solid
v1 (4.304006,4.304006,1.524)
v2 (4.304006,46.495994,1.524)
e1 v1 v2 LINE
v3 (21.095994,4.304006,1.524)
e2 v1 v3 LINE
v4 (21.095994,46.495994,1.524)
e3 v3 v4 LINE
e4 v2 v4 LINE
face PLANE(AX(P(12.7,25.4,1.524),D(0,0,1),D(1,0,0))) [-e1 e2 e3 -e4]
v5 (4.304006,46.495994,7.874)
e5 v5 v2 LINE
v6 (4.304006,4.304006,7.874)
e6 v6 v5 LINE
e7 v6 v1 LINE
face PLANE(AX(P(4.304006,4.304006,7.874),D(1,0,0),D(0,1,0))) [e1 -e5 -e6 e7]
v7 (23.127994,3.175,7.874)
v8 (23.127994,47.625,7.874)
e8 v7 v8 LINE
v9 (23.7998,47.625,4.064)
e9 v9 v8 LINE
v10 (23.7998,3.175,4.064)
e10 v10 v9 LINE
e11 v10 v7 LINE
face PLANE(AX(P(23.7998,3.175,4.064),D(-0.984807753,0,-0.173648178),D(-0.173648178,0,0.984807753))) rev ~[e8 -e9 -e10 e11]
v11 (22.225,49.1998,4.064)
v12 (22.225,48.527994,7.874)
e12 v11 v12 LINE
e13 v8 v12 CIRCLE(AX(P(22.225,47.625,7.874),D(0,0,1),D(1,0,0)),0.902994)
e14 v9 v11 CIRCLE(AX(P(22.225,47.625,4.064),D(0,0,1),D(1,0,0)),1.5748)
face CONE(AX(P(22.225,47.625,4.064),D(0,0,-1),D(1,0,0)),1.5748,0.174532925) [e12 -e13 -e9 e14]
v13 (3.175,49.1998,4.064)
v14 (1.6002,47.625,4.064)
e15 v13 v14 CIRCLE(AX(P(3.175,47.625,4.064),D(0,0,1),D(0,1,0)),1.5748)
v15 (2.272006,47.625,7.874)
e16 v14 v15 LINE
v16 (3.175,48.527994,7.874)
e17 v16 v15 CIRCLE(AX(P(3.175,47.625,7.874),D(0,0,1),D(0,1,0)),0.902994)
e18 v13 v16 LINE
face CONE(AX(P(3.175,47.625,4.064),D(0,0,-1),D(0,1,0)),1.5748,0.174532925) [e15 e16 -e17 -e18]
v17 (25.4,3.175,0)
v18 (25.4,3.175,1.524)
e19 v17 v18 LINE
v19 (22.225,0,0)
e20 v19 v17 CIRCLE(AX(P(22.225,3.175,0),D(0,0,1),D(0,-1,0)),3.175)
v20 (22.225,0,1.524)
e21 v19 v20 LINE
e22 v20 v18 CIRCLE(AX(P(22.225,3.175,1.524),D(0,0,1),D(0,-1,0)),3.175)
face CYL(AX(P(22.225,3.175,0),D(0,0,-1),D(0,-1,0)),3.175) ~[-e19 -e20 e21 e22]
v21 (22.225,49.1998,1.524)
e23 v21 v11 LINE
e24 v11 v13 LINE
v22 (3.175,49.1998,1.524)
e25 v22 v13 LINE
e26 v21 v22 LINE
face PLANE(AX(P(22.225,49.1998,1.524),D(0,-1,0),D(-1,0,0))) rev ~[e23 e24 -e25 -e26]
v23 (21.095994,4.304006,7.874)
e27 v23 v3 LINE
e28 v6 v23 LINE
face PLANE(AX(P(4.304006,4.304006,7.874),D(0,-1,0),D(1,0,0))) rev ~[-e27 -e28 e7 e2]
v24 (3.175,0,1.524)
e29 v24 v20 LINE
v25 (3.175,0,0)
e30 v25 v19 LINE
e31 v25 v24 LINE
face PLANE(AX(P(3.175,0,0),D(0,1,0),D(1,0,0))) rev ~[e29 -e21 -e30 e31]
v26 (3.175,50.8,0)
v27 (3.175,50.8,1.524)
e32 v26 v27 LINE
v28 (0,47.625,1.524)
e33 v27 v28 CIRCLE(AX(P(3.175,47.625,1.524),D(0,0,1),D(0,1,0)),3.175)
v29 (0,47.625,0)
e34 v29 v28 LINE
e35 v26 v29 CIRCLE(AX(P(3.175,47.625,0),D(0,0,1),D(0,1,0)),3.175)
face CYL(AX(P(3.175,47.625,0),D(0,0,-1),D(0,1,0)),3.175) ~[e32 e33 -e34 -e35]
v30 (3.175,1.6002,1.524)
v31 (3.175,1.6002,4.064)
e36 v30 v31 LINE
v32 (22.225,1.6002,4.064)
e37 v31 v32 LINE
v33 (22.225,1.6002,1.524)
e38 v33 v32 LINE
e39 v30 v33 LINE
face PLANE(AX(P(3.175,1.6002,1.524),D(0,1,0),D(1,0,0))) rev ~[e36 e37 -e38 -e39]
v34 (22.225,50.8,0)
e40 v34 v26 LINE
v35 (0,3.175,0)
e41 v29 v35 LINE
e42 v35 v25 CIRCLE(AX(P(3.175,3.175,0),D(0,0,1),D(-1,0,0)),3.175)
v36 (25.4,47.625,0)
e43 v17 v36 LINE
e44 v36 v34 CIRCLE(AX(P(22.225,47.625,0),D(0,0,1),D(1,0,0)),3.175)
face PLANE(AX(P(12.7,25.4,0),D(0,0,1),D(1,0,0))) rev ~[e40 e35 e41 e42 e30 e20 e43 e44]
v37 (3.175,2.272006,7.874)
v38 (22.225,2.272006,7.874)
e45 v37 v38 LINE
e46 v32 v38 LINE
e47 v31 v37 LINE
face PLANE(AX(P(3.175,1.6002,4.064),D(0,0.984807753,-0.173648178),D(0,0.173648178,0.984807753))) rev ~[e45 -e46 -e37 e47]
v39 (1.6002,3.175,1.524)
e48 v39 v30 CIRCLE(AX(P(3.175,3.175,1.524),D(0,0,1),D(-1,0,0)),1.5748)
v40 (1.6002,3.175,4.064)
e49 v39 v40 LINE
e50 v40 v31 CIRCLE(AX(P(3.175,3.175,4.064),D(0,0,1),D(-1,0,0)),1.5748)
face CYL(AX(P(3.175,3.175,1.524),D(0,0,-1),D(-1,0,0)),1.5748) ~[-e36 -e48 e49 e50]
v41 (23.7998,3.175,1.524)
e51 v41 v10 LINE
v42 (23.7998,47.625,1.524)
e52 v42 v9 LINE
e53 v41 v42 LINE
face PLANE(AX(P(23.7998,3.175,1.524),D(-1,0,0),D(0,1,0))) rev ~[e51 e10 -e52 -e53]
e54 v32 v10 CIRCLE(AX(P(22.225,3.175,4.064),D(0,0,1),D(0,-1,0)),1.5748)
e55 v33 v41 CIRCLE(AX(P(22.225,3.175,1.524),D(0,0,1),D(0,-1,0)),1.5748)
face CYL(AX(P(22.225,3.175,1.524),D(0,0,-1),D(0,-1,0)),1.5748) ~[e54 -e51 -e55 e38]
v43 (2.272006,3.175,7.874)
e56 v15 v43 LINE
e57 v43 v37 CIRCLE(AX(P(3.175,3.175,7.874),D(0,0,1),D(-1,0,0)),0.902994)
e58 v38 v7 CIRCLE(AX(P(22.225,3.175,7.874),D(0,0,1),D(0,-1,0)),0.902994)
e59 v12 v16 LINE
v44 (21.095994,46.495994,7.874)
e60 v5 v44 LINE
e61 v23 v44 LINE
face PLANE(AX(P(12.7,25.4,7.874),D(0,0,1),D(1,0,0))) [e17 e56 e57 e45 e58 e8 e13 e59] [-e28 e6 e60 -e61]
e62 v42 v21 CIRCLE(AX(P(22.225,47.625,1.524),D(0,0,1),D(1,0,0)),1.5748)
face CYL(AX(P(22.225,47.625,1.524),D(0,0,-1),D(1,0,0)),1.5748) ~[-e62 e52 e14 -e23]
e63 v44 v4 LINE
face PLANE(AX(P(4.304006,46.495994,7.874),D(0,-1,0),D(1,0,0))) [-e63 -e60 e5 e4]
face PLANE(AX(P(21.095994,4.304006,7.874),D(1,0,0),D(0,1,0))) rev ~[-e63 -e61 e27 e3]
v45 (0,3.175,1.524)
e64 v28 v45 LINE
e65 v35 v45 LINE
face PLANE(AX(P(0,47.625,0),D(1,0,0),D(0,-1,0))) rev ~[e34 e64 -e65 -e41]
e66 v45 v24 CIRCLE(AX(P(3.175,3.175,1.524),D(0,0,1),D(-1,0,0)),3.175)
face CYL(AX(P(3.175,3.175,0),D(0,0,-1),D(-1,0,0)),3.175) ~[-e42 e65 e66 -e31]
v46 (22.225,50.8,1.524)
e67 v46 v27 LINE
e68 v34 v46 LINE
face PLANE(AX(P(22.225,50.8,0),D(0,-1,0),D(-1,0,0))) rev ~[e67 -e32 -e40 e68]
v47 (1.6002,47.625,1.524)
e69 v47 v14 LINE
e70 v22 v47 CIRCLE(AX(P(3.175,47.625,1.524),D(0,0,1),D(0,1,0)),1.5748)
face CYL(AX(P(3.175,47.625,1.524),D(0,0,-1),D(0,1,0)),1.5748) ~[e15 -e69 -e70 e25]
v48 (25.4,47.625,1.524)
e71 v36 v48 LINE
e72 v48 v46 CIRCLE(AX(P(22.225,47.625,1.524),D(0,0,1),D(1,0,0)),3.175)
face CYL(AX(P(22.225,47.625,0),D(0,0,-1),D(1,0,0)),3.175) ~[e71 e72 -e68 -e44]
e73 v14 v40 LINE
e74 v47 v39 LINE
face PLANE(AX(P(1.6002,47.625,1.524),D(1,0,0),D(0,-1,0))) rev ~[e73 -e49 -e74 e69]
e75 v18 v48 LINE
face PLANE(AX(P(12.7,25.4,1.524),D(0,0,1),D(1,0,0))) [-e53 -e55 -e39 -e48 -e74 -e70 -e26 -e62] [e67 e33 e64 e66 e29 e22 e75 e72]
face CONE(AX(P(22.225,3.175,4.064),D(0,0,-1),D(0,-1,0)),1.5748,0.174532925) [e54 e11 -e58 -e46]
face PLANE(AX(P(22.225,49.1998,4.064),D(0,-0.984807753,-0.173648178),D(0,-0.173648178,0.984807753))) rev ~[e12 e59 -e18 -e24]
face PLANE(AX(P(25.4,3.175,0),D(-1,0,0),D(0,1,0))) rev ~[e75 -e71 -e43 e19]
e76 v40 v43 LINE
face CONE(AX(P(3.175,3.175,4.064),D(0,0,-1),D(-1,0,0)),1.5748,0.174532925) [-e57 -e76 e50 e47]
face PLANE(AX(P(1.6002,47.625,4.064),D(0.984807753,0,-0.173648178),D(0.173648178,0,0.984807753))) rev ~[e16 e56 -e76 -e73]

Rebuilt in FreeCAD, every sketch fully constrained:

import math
import FreeCAD as App
import Part
import Sketcher

V = App.Vector
Q = App.Units.Quantity


def add_polygon(sketch, points):
    """Adds a closed chain of lines whose ends are joined by coincident constraints."""
    first, n = sketch.GeometryCount, len(points)
    for a, b in zip(points, points[1:] + points[:1]):
        sketch.addGeometry(Part.LineSegment(App.Vector(*a, 0), App.Vector(*b, 0)), False)
    for i in range(n):
        sketch.addConstraint(Sketcher.Constraint("Coincident", first + i, 2, first + (i + 1) % n, 1))

doc = App.newDocument("Part")
params = doc.addObject("Spreadsheet::Sheet", "Params")
for row, (alias, value) in enumerate([
    ("sketch1_radius", "0.125 in"),
    ("pad1_length", "0.06 in"),
    ("sketch2_radius", "0.062 in"),
    ("sketch2_width", "0.75 in"),
    ("sketch2_height", "1.75 in"),
    ("pad2_length", "0.1 in"),
    ("sketch3_radius", "0.062 in"),
    ("sketch3_width", "0.75 in"),
    ("sketch3_height", "1.75 in"),
    ("pad3_length", "0.15 in"),
    ("pad3_taper", "-10 deg"),
    ("pocket1_length", "0.25 in"),
], start=1):
    params.set(f"A{row}", alias)
    params.set(f"B{row}", "=" + value)
    params.setAlias(f"B{row}", alias)

body = doc.addObject("PartDesign::Body", "Body")

# Sketch on XY plane
sketch1 = body.newObject("Sketcher::SketchObject", "Sketch")
sketch1.AttachmentSupport = (doc.getObject("XY_Plane"), [""])
sketch1.MapMode = "FlatFace"
sketch1.addGeometry([
    Part.ArcOfCircle(Part.Circle(V(3.2, 3.2, 0), V(0, 0, 1), 3.2), math.radians(180), math.radians(270)),  # 0
    Part.LineSegment(V(3.2, 0, 0), V(22.2, 0, 0)),  # 1
    Part.ArcOfCircle(Part.Circle(V(22.2, 3.2, 0), V(0, 0, 1), 3.2), math.radians(-90), math.radians(0)),  # 2
    Part.LineSegment(V(25.4, 3.2, 0), V(25.4, 47.6, 0)),  # 3
    Part.ArcOfCircle(Part.Circle(V(22.2, 47.6, 0), V(0, 0, 1), 3.2), math.radians(0), math.radians(90)),  # 4
    Part.LineSegment(V(22.2, 50.8, 0), V(3.2, 50.8, 0)),  # 5
    Part.ArcOfCircle(Part.Circle(V(3.2, 47.6, 0), V(0, 0, 1), 3.2), math.radians(90), math.radians(180)),  # 6
    Part.LineSegment(V(0, 47.6, 0), V(0, 3.2, 0)),  # 7
], False)
sketch1.addConstraint([
    Sketcher.Constraint("Tangent", 0, 2, 1, 1),
    Sketcher.Constraint("Tangent", 1, 2, 2, 1),
    Sketcher.Constraint("Tangent", 2, 2, 3, 1),
    Sketcher.Constraint("Tangent", 3, 2, 4, 1),
    Sketcher.Constraint("Tangent", 4, 2, 5, 1),
    Sketcher.Constraint("Tangent", 5, 2, 6, 1),
    Sketcher.Constraint("Tangent", 6, 2, 7, 1),
    Sketcher.Constraint("Tangent", 7, 2, 0, 1),
    Sketcher.Constraint("Horizontal", 1),
    Sketcher.Constraint("Vertical", 3),
    Sketcher.Constraint("Horizontal", 5),
    Sketcher.Constraint("Vertical", 7),
    Sketcher.Constraint("Equal", 0, 2),
    Sketcher.Constraint("Equal", 2, 4),
    Sketcher.Constraint("Equal", 4, 6),
    Sketcher.Constraint("PointOnObject", 0, 2, -1),
    Sketcher.Constraint("PointOnObject", 6, 2, -2),
    Sketcher.Constraint("DistanceX", -1, 1, 2, 2, Q("1 in")),
    Sketcher.Constraint("DistanceY", -1, 1, 4, 2, Q("2 in")),
    Sketcher.Constraint("Radius", 0, Q("0.125 in")),
])
sketch1.setExpression("Constraints[19]", "Params.sketch1_radius")
pad1 = body.newObject("PartDesign::Pad", "Pad")
pad1.Profile = sketch1
pad1.setExpression("Length", "Params.pad1_length")

# Sketch on XY plane
sketch2 = body.newObject("Sketcher::SketchObject", "Sketch001")
sketch2.AttachmentSupport = (doc.getObject("XY_Plane"), [""])
sketch2.MapMode = "FlatFace"
sketch2.AttachmentOffset = App.Placement(V(0, 0, 0.06 * 25.4), App.Rotation())
sketch2.addGeometry([
    Part.LineSegment(V(23.8, 3.2, 0), V(23.8, 47.6, 0)),  # 0
    Part.ArcOfCircle(Part.Circle(V(22.2, 47.6, 0), V(0, 0, 1), 1.6), math.radians(0), math.radians(90)),  # 1
    Part.LineSegment(V(22.2, 49.2, 0), V(3.2, 49.2, 0)),  # 2
    Part.ArcOfCircle(Part.Circle(V(3.2, 47.6, 0), V(0, 0, 1), 1.6), math.radians(90), math.radians(180)),  # 3
    Part.LineSegment(V(1.6, 47.6, 0), V(1.6, 3.2, 0)),  # 4
    Part.ArcOfCircle(Part.Circle(V(3.2, 3.2, 0), V(0, 0, 1), 1.6), math.radians(180), math.radians(270)),  # 5
    Part.LineSegment(V(3.2, 1.6, 0), V(22.2, 1.6, 0)),  # 6
    Part.ArcOfCircle(Part.Circle(V(22.2, 3.2, 0), V(0, 0, 1), 1.6), math.radians(-90), math.radians(0)),  # 7
], False)
sketch2.addConstraint([
    Sketcher.Constraint("Tangent", 0, 2, 1, 1),
    Sketcher.Constraint("Tangent", 1, 2, 2, 1),
    Sketcher.Constraint("Tangent", 2, 2, 3, 1),
    Sketcher.Constraint("Tangent", 3, 2, 4, 1),
    Sketcher.Constraint("Tangent", 4, 2, 5, 1),
    Sketcher.Constraint("Tangent", 5, 2, 6, 1),
    Sketcher.Constraint("Tangent", 6, 2, 7, 1),
    Sketcher.Constraint("Tangent", 7, 2, 0, 1),
    Sketcher.Constraint("Vertical", 0),
    Sketcher.Constraint("Horizontal", 2),
    Sketcher.Constraint("Vertical", 4),
    Sketcher.Constraint("Horizontal", 6),
    Sketcher.Constraint("Equal", 1, 3),
    Sketcher.Constraint("Equal", 3, 5),
    Sketcher.Constraint("Equal", 5, 7),
    Sketcher.Constraint("Radius", 1, Q("0.062 in")),
    Sketcher.Constraint("DistanceX", 2, 2, 2, 1, Q("0.75 in")),
    Sketcher.Constraint("DistanceY", 0, 1, 0, 2, Q("1.75 in")),
    Sketcher.Constraint("DistanceX", -1, 1, 1, 3, Q("0.875 in")),
    Sketcher.Constraint("DistanceY", -1, 1, 1, 3, Q("1.875 in")),
])
sketch2.setExpression("Constraints[15]", "Params.sketch2_radius")
sketch2.setExpression("Constraints[16]", "Params.sketch2_width")
sketch2.setExpression("Constraints[17]", "Params.sketch2_height")
pad2 = body.newObject("PartDesign::Pad", "Pad001")
pad2.Profile = sketch2
pad2.setExpression("Length", "Params.pad2_length")

# Sketch on XY plane
sketch3 = body.newObject("Sketcher::SketchObject", "Sketch002")
sketch3.AttachmentSupport = (doc.getObject("XY_Plane"), [""])
sketch3.MapMode = "FlatFace"
sketch3.AttachmentOffset = App.Placement(V(0, 0, 0.16 * 25.4), App.Rotation())
sketch3.addGeometry([
    Part.ArcOfCircle(Part.Circle(V(22.2, 3.2, 0), V(0, 0, 1), 1.6), math.radians(-90), math.radians(0)),  # 0
    Part.LineSegment(V(23.8, 3.2, 0), V(23.8, 47.6, 0)),  # 1
    Part.ArcOfCircle(Part.Circle(V(22.2, 47.6, 0), V(0, 0, 1), 1.6), math.radians(0), math.radians(90)),  # 2
    Part.LineSegment(V(22.2, 49.2, 0), V(3.2, 49.2, 0)),  # 3
    Part.ArcOfCircle(Part.Circle(V(3.2, 47.6, 0), V(0, 0, 1), 1.6), math.radians(90), math.radians(180)),  # 4
    Part.LineSegment(V(1.6, 47.6, 0), V(1.6, 3.2, 0)),  # 5
    Part.ArcOfCircle(Part.Circle(V(3.2, 3.2, 0), V(0, 0, 1), 1.6), math.radians(180), math.radians(270)),  # 6
    Part.LineSegment(V(3.2, 1.6, 0), V(22.2, 1.6, 0)),  # 7
], False)
sketch3.addConstraint([
    Sketcher.Constraint("Tangent", 0, 2, 1, 1),
    Sketcher.Constraint("Tangent", 1, 2, 2, 1),
    Sketcher.Constraint("Tangent", 2, 2, 3, 1),
    Sketcher.Constraint("Tangent", 3, 2, 4, 1),
    Sketcher.Constraint("Tangent", 4, 2, 5, 1),
    Sketcher.Constraint("Tangent", 5, 2, 6, 1),
    Sketcher.Constraint("Tangent", 6, 2, 7, 1),
    Sketcher.Constraint("Tangent", 7, 2, 0, 1),
    Sketcher.Constraint("Vertical", 1),
    Sketcher.Constraint("Horizontal", 3),
    Sketcher.Constraint("Vertical", 5),
    Sketcher.Constraint("Horizontal", 7),
    Sketcher.Constraint("Equal", 0, 2),
    Sketcher.Constraint("Equal", 2, 4),
    Sketcher.Constraint("Equal", 4, 6),
    Sketcher.Constraint("Radius", 0, Q("0.062 in")),
    Sketcher.Constraint("DistanceX", 3, 2, 3, 1, Q("0.75 in")),
    Sketcher.Constraint("DistanceY", 1, 1, 1, 2, Q("1.75 in")),
    Sketcher.Constraint("DistanceX", -1, 1, 0, 3, Q("0.875 in")),
    Sketcher.Constraint("DistanceY", -1, 1, 0, 3, Q("0.125 in")),
])
sketch3.setExpression("Constraints[15]", "Params.sketch3_radius")
sketch3.setExpression("Constraints[16]", "Params.sketch3_width")
sketch3.setExpression("Constraints[17]", "Params.sketch3_height")
pad3 = body.newObject("PartDesign::Pad", "Pad002")
pad3.Profile = sketch3
pad3.setExpression("Length", "Params.pad3_length")
pad3.setExpression("TaperAngle", "Params.pad3_taper")

# Sketch on XY plane
sketch4 = body.newObject("Sketcher::SketchObject", "Sketch003")
sketch4.AttachmentSupport = (doc.getObject("XY_Plane"), [""])
sketch4.MapMode = "FlatFace"
sketch4.AttachmentOffset = App.Placement(V(0, 0, 0.31 * 25.4), App.Rotation())
add_polygon(sketch4, [(4, 46), (4, 4), (21, 4), (21, 46)])  # lines 0-3
sketch4.addConstraint([
    Sketcher.Constraint("Vertical", 0),
    Sketcher.Constraint("Horizontal", 1),
    Sketcher.Constraint("Vertical", 2),
    Sketcher.Constraint("Horizontal", 3),
    Sketcher.Constraint("DistanceX", 1, 1, 1, 2, 16.791988),
    Sketcher.Constraint("DistanceY", 0, 2, 0, 1, 42.191988),
    Sketcher.Constraint("DistanceX", -1, 1, 0, 2, 4.304006),
    Sketcher.Constraint("DistanceY", -1, 1, 0, 2, 4.304006),
])
pocket1 = body.newObject("PartDesign::Pocket", "Pocket")
pocket1.Profile = sketch4
pocket1.setExpression("Length", "Params.pocket1_length")

doc.recompute()
